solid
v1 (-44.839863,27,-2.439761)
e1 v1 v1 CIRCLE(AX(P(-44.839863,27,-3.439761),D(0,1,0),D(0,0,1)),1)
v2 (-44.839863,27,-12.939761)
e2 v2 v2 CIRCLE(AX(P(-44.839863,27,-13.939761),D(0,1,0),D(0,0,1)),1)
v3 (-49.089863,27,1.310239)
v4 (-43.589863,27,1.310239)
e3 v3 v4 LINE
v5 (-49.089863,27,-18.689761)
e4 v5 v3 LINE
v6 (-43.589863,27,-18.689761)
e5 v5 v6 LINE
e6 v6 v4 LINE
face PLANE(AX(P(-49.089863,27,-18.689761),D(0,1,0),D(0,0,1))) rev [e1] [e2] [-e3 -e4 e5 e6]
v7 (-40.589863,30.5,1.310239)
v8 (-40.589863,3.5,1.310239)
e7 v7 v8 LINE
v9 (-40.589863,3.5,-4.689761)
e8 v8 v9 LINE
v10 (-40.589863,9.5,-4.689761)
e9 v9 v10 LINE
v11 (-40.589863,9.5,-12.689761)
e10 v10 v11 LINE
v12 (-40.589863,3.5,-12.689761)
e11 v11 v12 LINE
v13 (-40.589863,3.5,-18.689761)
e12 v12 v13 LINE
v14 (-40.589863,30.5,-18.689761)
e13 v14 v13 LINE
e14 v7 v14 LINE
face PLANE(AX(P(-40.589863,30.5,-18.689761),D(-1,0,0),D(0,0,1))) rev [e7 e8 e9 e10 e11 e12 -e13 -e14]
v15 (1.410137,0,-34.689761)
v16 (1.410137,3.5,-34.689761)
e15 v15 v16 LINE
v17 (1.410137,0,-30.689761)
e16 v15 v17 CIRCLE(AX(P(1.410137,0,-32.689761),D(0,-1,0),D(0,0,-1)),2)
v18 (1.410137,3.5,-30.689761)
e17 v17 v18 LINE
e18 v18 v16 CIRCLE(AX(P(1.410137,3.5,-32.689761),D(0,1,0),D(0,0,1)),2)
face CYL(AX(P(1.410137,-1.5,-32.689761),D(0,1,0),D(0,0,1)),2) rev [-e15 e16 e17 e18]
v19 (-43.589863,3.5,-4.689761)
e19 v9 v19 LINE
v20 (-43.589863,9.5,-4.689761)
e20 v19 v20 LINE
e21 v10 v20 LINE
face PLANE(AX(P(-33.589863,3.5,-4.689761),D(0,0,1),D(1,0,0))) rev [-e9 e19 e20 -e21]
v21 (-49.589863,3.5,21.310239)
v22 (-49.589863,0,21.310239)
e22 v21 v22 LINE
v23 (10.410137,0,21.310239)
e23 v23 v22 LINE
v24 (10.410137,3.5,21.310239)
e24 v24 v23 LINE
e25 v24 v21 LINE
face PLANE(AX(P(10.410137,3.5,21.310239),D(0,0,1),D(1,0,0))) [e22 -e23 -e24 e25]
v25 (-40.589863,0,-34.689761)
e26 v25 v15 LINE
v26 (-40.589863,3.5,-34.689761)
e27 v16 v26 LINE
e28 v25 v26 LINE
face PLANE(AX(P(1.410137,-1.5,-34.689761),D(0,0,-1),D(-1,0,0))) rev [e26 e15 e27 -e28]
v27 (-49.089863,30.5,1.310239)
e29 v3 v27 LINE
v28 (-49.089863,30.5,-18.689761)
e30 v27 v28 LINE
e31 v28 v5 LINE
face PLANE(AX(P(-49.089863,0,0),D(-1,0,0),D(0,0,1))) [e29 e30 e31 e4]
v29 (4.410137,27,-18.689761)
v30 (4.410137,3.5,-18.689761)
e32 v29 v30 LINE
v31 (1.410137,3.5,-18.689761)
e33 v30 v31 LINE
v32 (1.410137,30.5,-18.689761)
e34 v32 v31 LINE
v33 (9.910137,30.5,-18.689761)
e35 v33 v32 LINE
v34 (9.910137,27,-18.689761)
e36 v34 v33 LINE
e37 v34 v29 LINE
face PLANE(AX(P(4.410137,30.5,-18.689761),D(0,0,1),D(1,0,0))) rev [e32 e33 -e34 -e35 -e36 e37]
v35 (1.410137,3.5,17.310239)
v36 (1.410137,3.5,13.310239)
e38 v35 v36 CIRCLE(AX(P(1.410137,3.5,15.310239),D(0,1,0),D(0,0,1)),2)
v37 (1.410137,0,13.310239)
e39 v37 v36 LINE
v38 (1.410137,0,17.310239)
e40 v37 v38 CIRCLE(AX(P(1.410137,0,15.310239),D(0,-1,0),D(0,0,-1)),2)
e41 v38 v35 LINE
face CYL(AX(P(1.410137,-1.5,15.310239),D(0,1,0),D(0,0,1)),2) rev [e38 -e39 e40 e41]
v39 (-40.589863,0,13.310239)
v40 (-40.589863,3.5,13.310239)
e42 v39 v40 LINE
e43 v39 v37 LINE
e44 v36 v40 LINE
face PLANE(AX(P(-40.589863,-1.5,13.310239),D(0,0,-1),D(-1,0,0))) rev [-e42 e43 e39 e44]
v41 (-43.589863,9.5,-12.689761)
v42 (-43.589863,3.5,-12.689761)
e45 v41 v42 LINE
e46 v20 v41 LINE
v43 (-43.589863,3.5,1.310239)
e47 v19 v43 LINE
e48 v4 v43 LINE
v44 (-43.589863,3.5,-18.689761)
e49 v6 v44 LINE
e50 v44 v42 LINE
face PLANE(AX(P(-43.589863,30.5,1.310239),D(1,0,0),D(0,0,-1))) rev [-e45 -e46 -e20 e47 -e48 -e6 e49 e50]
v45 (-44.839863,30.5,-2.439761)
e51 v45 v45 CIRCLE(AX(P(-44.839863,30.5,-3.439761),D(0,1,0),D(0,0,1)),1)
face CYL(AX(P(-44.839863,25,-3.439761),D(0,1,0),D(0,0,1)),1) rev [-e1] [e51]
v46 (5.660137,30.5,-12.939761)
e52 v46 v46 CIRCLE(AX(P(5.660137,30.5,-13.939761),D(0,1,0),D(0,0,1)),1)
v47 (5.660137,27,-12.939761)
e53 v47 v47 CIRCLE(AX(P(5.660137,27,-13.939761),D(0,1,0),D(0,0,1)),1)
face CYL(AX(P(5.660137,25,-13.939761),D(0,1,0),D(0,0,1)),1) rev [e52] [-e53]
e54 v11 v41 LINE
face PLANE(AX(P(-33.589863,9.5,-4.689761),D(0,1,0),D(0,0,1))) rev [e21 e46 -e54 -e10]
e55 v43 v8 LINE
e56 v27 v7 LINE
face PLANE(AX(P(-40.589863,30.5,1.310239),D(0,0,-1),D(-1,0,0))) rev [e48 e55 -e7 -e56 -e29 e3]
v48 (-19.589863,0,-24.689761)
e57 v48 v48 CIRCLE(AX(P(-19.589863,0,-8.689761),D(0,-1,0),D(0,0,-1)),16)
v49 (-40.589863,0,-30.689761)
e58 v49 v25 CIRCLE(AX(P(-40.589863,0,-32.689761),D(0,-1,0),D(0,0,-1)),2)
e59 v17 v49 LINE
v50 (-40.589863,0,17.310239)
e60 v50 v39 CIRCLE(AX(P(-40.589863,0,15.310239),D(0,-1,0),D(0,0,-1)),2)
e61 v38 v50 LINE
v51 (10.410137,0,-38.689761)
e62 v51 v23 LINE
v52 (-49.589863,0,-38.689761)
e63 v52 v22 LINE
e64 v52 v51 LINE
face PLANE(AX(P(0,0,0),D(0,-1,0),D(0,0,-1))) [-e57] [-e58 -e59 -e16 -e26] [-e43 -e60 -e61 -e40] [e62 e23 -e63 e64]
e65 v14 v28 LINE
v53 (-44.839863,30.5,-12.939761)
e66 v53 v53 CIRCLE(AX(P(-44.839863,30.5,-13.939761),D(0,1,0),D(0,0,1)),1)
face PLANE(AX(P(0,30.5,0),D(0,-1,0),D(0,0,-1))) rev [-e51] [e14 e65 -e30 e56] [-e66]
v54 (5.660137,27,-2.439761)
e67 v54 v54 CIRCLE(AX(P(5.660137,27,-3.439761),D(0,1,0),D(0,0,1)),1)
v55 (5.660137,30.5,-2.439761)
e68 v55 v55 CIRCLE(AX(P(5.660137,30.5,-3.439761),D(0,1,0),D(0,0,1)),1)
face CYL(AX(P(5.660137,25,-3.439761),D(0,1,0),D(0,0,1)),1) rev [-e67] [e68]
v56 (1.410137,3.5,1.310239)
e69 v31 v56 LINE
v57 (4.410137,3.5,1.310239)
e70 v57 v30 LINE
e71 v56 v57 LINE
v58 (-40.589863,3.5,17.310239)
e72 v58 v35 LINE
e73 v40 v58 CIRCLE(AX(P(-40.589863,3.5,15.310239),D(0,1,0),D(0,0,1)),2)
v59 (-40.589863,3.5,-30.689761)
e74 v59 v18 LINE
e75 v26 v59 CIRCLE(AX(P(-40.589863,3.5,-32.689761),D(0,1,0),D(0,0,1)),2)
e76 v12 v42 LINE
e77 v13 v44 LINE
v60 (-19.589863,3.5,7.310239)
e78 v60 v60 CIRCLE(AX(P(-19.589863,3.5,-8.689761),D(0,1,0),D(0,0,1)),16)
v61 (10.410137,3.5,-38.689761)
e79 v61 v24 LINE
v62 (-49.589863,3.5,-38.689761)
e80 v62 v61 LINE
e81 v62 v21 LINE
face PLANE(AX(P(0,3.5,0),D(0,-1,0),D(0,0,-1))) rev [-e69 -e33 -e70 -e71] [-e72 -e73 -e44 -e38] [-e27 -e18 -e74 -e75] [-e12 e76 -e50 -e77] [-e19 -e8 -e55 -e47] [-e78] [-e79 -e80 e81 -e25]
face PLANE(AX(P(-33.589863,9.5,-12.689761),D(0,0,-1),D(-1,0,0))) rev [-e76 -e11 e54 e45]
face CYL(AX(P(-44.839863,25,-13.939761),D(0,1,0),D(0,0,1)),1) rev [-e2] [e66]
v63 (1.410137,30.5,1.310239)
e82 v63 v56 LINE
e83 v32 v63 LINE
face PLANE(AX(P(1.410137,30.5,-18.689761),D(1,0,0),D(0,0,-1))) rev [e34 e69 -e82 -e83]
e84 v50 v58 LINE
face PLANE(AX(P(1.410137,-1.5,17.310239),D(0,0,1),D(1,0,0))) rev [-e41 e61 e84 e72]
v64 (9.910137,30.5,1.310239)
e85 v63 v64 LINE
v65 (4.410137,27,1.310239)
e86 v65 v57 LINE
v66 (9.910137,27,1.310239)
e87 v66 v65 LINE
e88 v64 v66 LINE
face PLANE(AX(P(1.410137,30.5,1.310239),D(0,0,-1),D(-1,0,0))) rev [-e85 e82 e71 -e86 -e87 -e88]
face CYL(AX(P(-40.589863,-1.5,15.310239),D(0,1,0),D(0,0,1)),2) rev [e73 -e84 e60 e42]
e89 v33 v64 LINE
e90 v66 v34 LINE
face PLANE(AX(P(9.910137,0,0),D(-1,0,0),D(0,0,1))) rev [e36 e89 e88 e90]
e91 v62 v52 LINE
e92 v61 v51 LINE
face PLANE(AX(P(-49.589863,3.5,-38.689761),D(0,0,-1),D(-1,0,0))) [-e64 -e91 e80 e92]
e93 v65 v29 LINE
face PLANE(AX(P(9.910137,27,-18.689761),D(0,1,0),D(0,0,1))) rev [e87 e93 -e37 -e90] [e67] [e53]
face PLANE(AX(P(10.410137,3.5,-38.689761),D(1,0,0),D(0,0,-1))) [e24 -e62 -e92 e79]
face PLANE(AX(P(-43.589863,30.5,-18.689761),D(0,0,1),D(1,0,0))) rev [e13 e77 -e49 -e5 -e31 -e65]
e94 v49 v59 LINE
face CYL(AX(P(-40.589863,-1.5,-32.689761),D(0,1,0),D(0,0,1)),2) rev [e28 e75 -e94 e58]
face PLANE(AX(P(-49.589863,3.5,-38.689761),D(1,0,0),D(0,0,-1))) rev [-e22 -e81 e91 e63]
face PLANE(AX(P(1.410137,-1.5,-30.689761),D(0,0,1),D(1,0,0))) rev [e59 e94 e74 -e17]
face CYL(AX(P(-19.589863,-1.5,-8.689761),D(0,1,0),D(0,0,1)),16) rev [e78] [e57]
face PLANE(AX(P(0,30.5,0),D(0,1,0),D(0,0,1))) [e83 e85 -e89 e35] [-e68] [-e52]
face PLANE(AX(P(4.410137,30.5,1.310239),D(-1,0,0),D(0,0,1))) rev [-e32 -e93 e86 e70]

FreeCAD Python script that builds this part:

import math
import FreeCAD as App
import Part
import Sketcher
from FreeCAD import Vector


def add_polygon(sketch, points):
    """Adds a closed chain of lines whose ends are joined by coincident constraints."""
    first, n = sketch.GeometryCount, len(points)
    for a, b in zip(points, points[1:] + points[:1]):
        sketch.addGeometry(Part.LineSegment(App.Vector(*a, 0), App.Vector(*b, 0)), False)
    for i in range(n):
        sketch.addConstraint(Sketcher.Constraint("Coincident", first + i, 2, first + (i + 1) % n, 1))

doc = App.newDocument("Part")
params = doc.addObject("Spreadsheet::Sheet", "Params")
for row, (alias, value) in enumerate([
    ("sketch1_width", "60 mm"),
    ("pad1_length", "3.5 mm"),
    ("sketch2_width", "3 mm"),
    ("sketch2_height", "20 mm"),
    ("pad2_length", "27 mm"),
    ("sketch3_diameter", "32 mm"),
    ("pocket1_length", "5 mm"),
    ("sketch4_radius", "2 mm"),
    ("sketch4_width", "42 mm"),
    ("pocket2_length", "5 mm"),
    ("sketch5_height", "20 mm"),
    ("sketch5_width", "3.5 mm"),
    ("pad3_length", "5.5 mm"),
    ("sketch6_height", "20 mm"),
    ("sketch6_width", "3.5 mm"),
    ("pad4_length", "5.5 mm"),
    ("sketch7_diameter", "2 mm"),
    ("pocket3_length", "5.5 mm"),
    ("sketch8_diameter", "2 mm"),
    ("pocket4_length", "5.5 mm"),
    ("sketch9_width", "6 mm"),
    ("sketch9_height", "8 mm"),
    ("pocket5_length", "10 mm"),
], start=1):
    params.set(f"A{row}", alias)
    params.set(f"B{row}", "=" + value)
    params.setAlias(f"B{row}", alias)

body = doc.addObject("PartDesign::Body", "Body")

# Sketch on XZ plane
sketch1 = body.newObject("Sketcher::SketchObject", "Sketch")
sketch1.AttachmentSupport = (doc.getObject("XZ_Plane"), [""])
sketch1.MapMode = "FlatFace"
add_polygon(sketch1, [(-50, -39), (-50, 21), (10, 21), (10, -39)])  # lines 0-3
sketch1.addConstraint(Sketcher.Constraint("Vertical", 0))
sketch1.addConstraint(Sketcher.Constraint("Horizontal", 1))
sketch1.addConstraint(Sketcher.Constraint("Vertical", 2))
sketch1.addConstraint(Sketcher.Constraint("Horizontal", 3))
sketch1.addConstraint(Sketcher.Constraint("Equal", 3, 0))
sketch1.addConstraint(Sketcher.Constraint("DistanceX", 1, 1, 1, 2, 60.0))
sketch1.addConstraint(Sketcher.Constraint("DistanceY", -1, 1, 0, 2, 21.310239))
sketch1.addConstraint(Sketcher.Constraint("DistanceX", 0, 2, -1, 1, 49.589863))
sketch1.setExpression("Constraints[9]", "Params.sketch1_width")
pad1 = body.newObject("PartDesign::Pad", "Pad")
pad1.Profile = sketch1
pad1.setExpression("Length", "Params.pad1_length")
pad1.Reversed = True

# Sketch on XZ plane
sketch2 = body.newObject("Sketcher::SketchObject", "Sketch001")
sketch2.AttachmentSupport = (doc.getObject("XZ_Plane"), [""])
sketch2.MapMode = "FlatFace"
sketch2.AttachmentOffset = App.Placement(Vector(0, 0, -3.5), App.Rotation())
add_polygon(sketch2, [(1.4, -18.7), (1.4, 1.3), (4.4, 1.3), (4.4, -18.7)])  # lines 0-3
add_polygon(sketch2, [(-43.6, -18.7), (-43.6, 1.3), (-40.6, 1.3), (-40.6, -18.7)])  # lines 4-7
sketch2.addConstraint(Sketcher.Constraint("Vertical", 0))
sketch2.addConstraint(Sketcher.Constraint("Horizontal", 1))
sketch2.addConstraint(Sketcher.Constraint("Vertical", 2))
sketch2.addConstraint(Sketcher.Constraint("Horizontal", 3))
sketch2.addConstraint(Sketcher.Constraint("Vertical", 4))
sketch2.addConstraint(Sketcher.Constraint("Horizontal", 5))
sketch2.addConstraint(Sketcher.Constraint("Vertical", 6))
sketch2.addConstraint(Sketcher.Constraint("Horizontal", 7))
sketch2.addConstraint(Sketcher.Constraint("Horizontal", 1, 2, 4, 2))
sketch2.addConstraint(Sketcher.Constraint("Horizontal", 3, 2, 6, 2))
sketch2.addConstraint(Sketcher.Constraint("Equal", 3, 5))
sketch2.addConstraint(Sketcher.Constraint("DistanceX", 1, 1, 1, 2, 3.0))
sketch2.addConstraint(Sketcher.Constraint("DistanceY", 0, 1, 0, 2, 20.0))
sketch2.addConstraint(Sketcher.Constraint("DistanceX", 4, 2, 0, 2, 45.0))
sketch2.addConstraint(Sketcher.Constraint("DistanceY", -1, 1, 0, 2, 1.310239))
sketch2.addConstraint(Sketcher.Constraint("DistanceX", -1, 1, 0, 2, 1.410137))
sketch2.setExpression("Constraints[19]", "Params.sketch2_width")
sketch2.setExpression("Constraints[20]", "Params.sketch2_height")
pad2 = body.newObject("PartDesign::Pad", "Pad001")
pad2.Profile = sketch2
pad2.setExpression("Length", "Params.pad2_length")
pad2.Reversed = True

# Sketch on XZ plane
sketch3 = body.newObject("Sketcher::SketchObject", "Sketch002")
sketch3.AttachmentSupport = (doc.getObject("XZ_Plane"), [""])
sketch3.MapMode = "FlatFace"
sketch3.AttachmentOffset = App.Placement(Vector(0, 0, -3.5), App.Rotation())
sketch3.addGeometry(Part.Circle(Vector(-20, -9, 0), Vector(0, 0, 1), 16), False)
sketch3.addConstraint(Sketcher.Constraint("Diameter", 0, 32.0))
sketch3.addConstraint(Sketcher.Constraint("DistanceY", 0, 3, -1, 1, 8.689761))
sketch3.addConstraint(Sketcher.Constraint("DistanceX", 0, 3, -1, 1, 19.589863))
sketch3.setExpression("Constraints[0]", "Params.sketch3_diameter")
pocket1 = body.newObject("PartDesign::Pocket", "Pocket")
pocket1.Profile = sketch3
pocket1.setExpression("Length", "Params.pocket1_length")
pocket1.Reversed = True

# Sketch on XZ plane
sketch4 = body.newObject("Sketcher::SketchObject", "Sketch003")
sketch4.AttachmentSupport = (doc.getObject("XZ_Plane"), [""])
sketch4.MapMode = "FlatFace"
sketch4.AttachmentOffset = App.Placement(Vector(0, 0, -3.5), App.Rotation())
sketch4.addGeometry(Part.LineSegment(Vector(-40.6, 17.3, 0), Vector(1.4, 17.3, 0)), False)
sketch4.addGeometry(Part.ArcOfCircle(Part.Circle(Vector(1.4, 15.3, 0), Vector(0, 0, 1), 2), math.radians(-90), math.radians(90)), False)
sketch4.addGeometry(Part.LineSegment(Vector(1.4, 13.3, 0), Vector(-40.6, 13.3, 0)), False)
sketch4.addGeometry(Part.ArcOfCircle(Part.Circle(Vector(-40.6, 15.3, 0), Vector(0, 0, 1), 2), math.radians(90), math.radians(270)), False)
sketch4.addGeometry(Part.LineSegment(Vector(-40.6, -30.7, 0), Vector(1.4, -30.7, 0)), False)
sketch4.addGeometry(Part.ArcOfCircle(Part.Circle(Vector(1.4, -32.7, 0), Vector(0, 0, 1), 2), math.radians(-90), math.radians(90)), False)
sketch4.addGeometry(Part.LineSegment(Vector(1.4, -34.7, 0), Vector(-40.6, -34.7, 0)), False)
sketch4.addGeometry(Part.ArcOfCircle(Part.Circle(Vector(-40.6, -32.7, 0), Vector(0, 0, 1), 2), math.radians(90), math.radians(270)), False)
sketch4.addConstraint(Sketcher.Constraint("Tangent", 0, 2, 1, 2))
sketch4.addConstraint(Sketcher.Constraint("Tangent", 1, 1, 2, 1))
sketch4.addConstraint(Sketcher.Constraint("Tangent", 2, 2, 3, 2))
sketch4.addConstraint(Sketcher.Constraint("Tangent", 3, 1, 0, 1))
sketch4.addConstraint(Sketcher.Constraint("Tangent", 4, 2, 5, 2))
sketch4.addConstraint(Sketcher.Constraint("Tangent", 5, 1, 6, 1))
sketch4.addConstraint(Sketcher.Constraint("Tangent", 6, 2, 7, 2))
sketch4.addConstraint(Sketcher.Constraint("Tangent", 7, 1, 4, 1))
sketch4.addConstraint(Sketcher.Constraint("Horizontal", 0))
sketch4.addConstraint(Sketcher.Constraint("Horizontal", 2))
sketch4.addConstraint(Sketcher.Constraint("Horizontal", 4))
sketch4.addConstraint(Sketcher.Constraint("Horizontal", 6))
sketch4.addConstraint(Sketcher.Constraint("Equal", 3, 5))
sketch4.addConstraint(Sketcher.Constraint("Vertical", 1, 3, 5, 3))
sketch4.addConstraint(Sketcher.Constraint("Vertical", 3, 3, 7, 3))
sketch4.addConstraint(Sketcher.Constraint("Radius", 1, 2.0))
sketch4.addConstraint(Sketcher.Constraint("DistanceX", 0, 1, 0, 2, 42.0))
sketch4.addConstraint(Sketcher.Constraint("DistanceY", 5, 3, 1, 3, 48.0))
sketch4.addConstraint(Sketcher.Constraint("DistanceY", -1, 1, 1, 3, 15.310239))
sketch4.addConstraint(Sketcher.Constraint("DistanceX", -1, 1, 1, 3, 1.410137))
sketch4.setExpression("Constraints[15]", "Params.sketch4_radius")
sketch4.setExpression("Constraints[16]", "Params.sketch4_width")
pocket2 = body.newObject("PartDesign::Pocket", "Pocket001")
pocket2.Profile = sketch4
pocket2.setExpression("Length", "Params.pocket2_length")
pocket2.Reversed = True

# Sketch on YZ plane
sketch5 = body.newObject("Sketcher::SketchObject", "Sketch004")
sketch5.AttachmentSupport = (doc.getObject("YZ_Plane"), [""])
sketch5.MapMode = "FlatFace"
sketch5.AttachmentOffset = App.Placement(Vector(0, 0, 4.410137), App.Rotation())
add_polygon(sketch5, [(30.5, 1.3), (27, 1.3), (27, -18.7), (30.5, -18.7)])  # lines 0-3
sketch5.addConstraint(Sketcher.Constraint("Horizontal", 0))
sketch5.addConstraint(Sketcher.Constraint("Vertical", 1))
sketch5.addConstraint(Sketcher.Constraint("Horizontal", 2))
sketch5.addConstraint(Sketcher.Constraint("Vertical", 3))
sketch5.addConstraint(Sketcher.Constraint("DistanceY", 1, 2, 1, 1, 20.0))
sketch5.addConstraint(Sketcher.Constraint("DistanceX", 0, 2, 0, 1, 3.5))
sketch5.addConstraint(Sketcher.Constraint("DistanceX", -1, 1, 0, 2, 27.0))
sketch5.addConstraint(Sketcher.Constraint("DistanceY", -1, 1, 0, 2, 1.310239))
sketch5.setExpression("Constraints[8]", "Params.sketch5_height")
sketch5.setExpression("Constraints[9]", "Params.sketch5_width")
pad3 = body.newObject("PartDesign::Pad", "Pad002")
pad3.Profile = sketch5
pad3.setExpression("Length", "Params.pad3_length")

# Sketch on YZ plane
sketch6 = body.newObject("Sketcher::SketchObject", "Sketch005")
sketch6.AttachmentSupport = (doc.getObject("YZ_Plane"), [""])
sketch6.MapMode = "FlatFace"
sketch6.AttachmentOffset = App.Placement(Vector(0, 0, -43.589863), App.Rotation())
add_polygon(sketch6, [(30.5, -18.7), (27, -18.7), (27, 1.3), (30.5, 1.3)])  # lines 0-3
sketch6.addConstraint(Sketcher.Constraint("Horizontal", 0))
sketch6.addConstraint(Sketcher.Constraint("Vertical", 1))
sketch6.addConstraint(Sketcher.Constraint("Horizontal", 2))
sketch6.addConstraint(Sketcher.Constraint("Vertical", 3))
sketch6.addConstraint(Sketcher.Constraint("DistanceY", 1, 1, 1, 2, 20.0))
sketch6.addConstraint(Sketcher.Constraint("DistanceX", 0, 2, 0, 1, 3.5))
sketch6.addConstraint(Sketcher.Constraint("DistanceX", -1, 1, 0, 2, 27.0))
sketch6.addConstraint(Sketcher.Constraint("DistanceY", 0, 2, -1, 1, 18.689761))
sketch6.setExpression("Constraints[8]", "Params.sketch6_height")
sketch6.setExpression("Constraints[9]", "Params.sketch6_width")
pad4 = body.newObject("PartDesign::Pad", "Pad003")
pad4.Profile = sketch6
pad4.setExpression("Length", "Params.pad4_length")
pad4.Reversed = True

# Sketch on XZ plane
sketch7 = body.newObject("Sketcher::SketchObject", "Sketch006")
sketch7.AttachmentSupport = (doc.getObject("XZ_Plane"), [""])
sketch7.MapMode = "FlatFace"
sketch7.AttachmentOffset = App.Placement(Vector(0, 0, -30.5), App.Rotation())
sketch7.addGeometry(Part.Circle(Vector(-44.8, -3.4, 0), Vector(0, 0, 1), 1), False)
sketch7.addGeometry(Part.Circle(Vector(-44.8, -13.9, 0), Vector(0, 0, 1), 1), False)
sketch7.addConstraint(Sketcher.Constraint("Equal", 0, 1))
sketch7.addConstraint(Sketcher.Constraint("Vertical", 0, 3, 1, 3))
sketch7.addConstraint(Sketcher.Constraint("Diameter", 0, 2.0))
sketch7.addConstraint(Sketcher.Constraint("DistanceY", 1, 3, 0, 3, 10.5))
sketch7.addConstraint(Sketcher.Constraint("DistanceY", 0, 3, -1, 1, 3.439761))
sketch7.addConstraint(Sketcher.Constraint("DistanceX", 0, 3, -1, 1, 44.839863))
sketch7.setExpression("Constraints[2]", "Params.sketch7_diameter")
pocket3 = body.newObject("PartDesign::Pocket", "Pocket002")
pocket3.Profile = sketch7
pocket3.setExpression("Length", "Params.pocket3_length")
pocket3.Reversed = True

# Sketch on XZ plane
sketch8 = body.newObject("Sketcher::SketchObject", "Sketch007")
sketch8.AttachmentSupport = (doc.getObject("XZ_Plane"), [""])
sketch8.MapMode = "FlatFace"
sketch8.AttachmentOffset = App.Placement(Vector(0, 0, -30.5), App.Rotation())
sketch8.addGeometry(Part.Circle(Vector(5.7, -3.4, 0), Vector(0, 0, 1), 1), False)
sketch8.addGeometry(Part.Circle(Vector(5.7, -13.9, 0), Vector(0, 0, 1), 1), False)
sketch8.addConstraint(Sketcher.Constraint("Equal", 0, 1))
sketch8.addConstraint(Sketcher.Constraint("Vertical", 0, 3, 1, 3))
sketch8.addConstraint(Sketcher.Constraint("Diameter", 0, 2.0))
sketch8.addConstraint(Sketcher.Constraint("DistanceY", 1, 3, 0, 3, 10.5))
sketch8.addConstraint(Sketcher.Constraint("DistanceY", 0, 3, -1, 1, 3.439761))
sketch8.addConstraint(Sketcher.Constraint("DistanceX", -1, 1, 0, 3, 5.660137))
sketch8.setExpression("Constraints[2]", "Params.sketch8_diameter")
pocket4 = body.newObject("PartDesign::Pocket", "Pocket003")
pocket4.Profile = sketch8
pocket4.setExpression("Length", "Params.pocket4_length")
pocket4.Reversed = True

# Sketch on YZ plane
sketch9 = body.newObject("Sketcher::SketchObject", "Sketch008")
sketch9.AttachmentSupport = (doc.getObject("YZ_Plane"), [""])
sketch9.MapMode = "FlatFace"
sketch9.AttachmentOffset = App.Placement(Vector(0, 0, -43.589863), App.Rotation())
add_polygon(sketch9, [(10, -13), (4, -13), (4, -5), (10, -5)])  # lines 0-3
sketch9.addConstraint(Sketcher.Constraint("Horizontal", 0))
sketch9.addConstraint(Sketcher.Constraint("Vertical", 1))
sketch9.addConstraint(Sketcher.Constraint("Horizontal", 2))
sketch9.addConstraint(Sketcher.Constraint("Vertical", 3))
sketch9.addConstraint(Sketcher.Constraint("DistanceX", 0, 2, 0, 1, 6.0))
sketch9.addConstraint(Sketcher.Constraint("DistanceY", 1, 1, 1, 2, 8.0))
sketch9.addConstraint(Sketcher.Constraint("DistanceX", -1, 1, 0, 2, 3.5))
sketch9.addConstraint(Sketcher.Constraint("DistanceY", 0, 2, -1, 1, 12.689761))
sketch9.setExpression("Constraints[8]", "Params.sketch9_width")
sketch9.setExpression("Constraints[9]", "Params.sketch9_height")
pocket5 = body.newObject("PartDesign::Pocket", "Pocket004")
pocket5.Profile = sketch9
pocket5.setExpression("Length", "Params.pocket5_length")
pocket5.Reversed = True

doc.recompute()
